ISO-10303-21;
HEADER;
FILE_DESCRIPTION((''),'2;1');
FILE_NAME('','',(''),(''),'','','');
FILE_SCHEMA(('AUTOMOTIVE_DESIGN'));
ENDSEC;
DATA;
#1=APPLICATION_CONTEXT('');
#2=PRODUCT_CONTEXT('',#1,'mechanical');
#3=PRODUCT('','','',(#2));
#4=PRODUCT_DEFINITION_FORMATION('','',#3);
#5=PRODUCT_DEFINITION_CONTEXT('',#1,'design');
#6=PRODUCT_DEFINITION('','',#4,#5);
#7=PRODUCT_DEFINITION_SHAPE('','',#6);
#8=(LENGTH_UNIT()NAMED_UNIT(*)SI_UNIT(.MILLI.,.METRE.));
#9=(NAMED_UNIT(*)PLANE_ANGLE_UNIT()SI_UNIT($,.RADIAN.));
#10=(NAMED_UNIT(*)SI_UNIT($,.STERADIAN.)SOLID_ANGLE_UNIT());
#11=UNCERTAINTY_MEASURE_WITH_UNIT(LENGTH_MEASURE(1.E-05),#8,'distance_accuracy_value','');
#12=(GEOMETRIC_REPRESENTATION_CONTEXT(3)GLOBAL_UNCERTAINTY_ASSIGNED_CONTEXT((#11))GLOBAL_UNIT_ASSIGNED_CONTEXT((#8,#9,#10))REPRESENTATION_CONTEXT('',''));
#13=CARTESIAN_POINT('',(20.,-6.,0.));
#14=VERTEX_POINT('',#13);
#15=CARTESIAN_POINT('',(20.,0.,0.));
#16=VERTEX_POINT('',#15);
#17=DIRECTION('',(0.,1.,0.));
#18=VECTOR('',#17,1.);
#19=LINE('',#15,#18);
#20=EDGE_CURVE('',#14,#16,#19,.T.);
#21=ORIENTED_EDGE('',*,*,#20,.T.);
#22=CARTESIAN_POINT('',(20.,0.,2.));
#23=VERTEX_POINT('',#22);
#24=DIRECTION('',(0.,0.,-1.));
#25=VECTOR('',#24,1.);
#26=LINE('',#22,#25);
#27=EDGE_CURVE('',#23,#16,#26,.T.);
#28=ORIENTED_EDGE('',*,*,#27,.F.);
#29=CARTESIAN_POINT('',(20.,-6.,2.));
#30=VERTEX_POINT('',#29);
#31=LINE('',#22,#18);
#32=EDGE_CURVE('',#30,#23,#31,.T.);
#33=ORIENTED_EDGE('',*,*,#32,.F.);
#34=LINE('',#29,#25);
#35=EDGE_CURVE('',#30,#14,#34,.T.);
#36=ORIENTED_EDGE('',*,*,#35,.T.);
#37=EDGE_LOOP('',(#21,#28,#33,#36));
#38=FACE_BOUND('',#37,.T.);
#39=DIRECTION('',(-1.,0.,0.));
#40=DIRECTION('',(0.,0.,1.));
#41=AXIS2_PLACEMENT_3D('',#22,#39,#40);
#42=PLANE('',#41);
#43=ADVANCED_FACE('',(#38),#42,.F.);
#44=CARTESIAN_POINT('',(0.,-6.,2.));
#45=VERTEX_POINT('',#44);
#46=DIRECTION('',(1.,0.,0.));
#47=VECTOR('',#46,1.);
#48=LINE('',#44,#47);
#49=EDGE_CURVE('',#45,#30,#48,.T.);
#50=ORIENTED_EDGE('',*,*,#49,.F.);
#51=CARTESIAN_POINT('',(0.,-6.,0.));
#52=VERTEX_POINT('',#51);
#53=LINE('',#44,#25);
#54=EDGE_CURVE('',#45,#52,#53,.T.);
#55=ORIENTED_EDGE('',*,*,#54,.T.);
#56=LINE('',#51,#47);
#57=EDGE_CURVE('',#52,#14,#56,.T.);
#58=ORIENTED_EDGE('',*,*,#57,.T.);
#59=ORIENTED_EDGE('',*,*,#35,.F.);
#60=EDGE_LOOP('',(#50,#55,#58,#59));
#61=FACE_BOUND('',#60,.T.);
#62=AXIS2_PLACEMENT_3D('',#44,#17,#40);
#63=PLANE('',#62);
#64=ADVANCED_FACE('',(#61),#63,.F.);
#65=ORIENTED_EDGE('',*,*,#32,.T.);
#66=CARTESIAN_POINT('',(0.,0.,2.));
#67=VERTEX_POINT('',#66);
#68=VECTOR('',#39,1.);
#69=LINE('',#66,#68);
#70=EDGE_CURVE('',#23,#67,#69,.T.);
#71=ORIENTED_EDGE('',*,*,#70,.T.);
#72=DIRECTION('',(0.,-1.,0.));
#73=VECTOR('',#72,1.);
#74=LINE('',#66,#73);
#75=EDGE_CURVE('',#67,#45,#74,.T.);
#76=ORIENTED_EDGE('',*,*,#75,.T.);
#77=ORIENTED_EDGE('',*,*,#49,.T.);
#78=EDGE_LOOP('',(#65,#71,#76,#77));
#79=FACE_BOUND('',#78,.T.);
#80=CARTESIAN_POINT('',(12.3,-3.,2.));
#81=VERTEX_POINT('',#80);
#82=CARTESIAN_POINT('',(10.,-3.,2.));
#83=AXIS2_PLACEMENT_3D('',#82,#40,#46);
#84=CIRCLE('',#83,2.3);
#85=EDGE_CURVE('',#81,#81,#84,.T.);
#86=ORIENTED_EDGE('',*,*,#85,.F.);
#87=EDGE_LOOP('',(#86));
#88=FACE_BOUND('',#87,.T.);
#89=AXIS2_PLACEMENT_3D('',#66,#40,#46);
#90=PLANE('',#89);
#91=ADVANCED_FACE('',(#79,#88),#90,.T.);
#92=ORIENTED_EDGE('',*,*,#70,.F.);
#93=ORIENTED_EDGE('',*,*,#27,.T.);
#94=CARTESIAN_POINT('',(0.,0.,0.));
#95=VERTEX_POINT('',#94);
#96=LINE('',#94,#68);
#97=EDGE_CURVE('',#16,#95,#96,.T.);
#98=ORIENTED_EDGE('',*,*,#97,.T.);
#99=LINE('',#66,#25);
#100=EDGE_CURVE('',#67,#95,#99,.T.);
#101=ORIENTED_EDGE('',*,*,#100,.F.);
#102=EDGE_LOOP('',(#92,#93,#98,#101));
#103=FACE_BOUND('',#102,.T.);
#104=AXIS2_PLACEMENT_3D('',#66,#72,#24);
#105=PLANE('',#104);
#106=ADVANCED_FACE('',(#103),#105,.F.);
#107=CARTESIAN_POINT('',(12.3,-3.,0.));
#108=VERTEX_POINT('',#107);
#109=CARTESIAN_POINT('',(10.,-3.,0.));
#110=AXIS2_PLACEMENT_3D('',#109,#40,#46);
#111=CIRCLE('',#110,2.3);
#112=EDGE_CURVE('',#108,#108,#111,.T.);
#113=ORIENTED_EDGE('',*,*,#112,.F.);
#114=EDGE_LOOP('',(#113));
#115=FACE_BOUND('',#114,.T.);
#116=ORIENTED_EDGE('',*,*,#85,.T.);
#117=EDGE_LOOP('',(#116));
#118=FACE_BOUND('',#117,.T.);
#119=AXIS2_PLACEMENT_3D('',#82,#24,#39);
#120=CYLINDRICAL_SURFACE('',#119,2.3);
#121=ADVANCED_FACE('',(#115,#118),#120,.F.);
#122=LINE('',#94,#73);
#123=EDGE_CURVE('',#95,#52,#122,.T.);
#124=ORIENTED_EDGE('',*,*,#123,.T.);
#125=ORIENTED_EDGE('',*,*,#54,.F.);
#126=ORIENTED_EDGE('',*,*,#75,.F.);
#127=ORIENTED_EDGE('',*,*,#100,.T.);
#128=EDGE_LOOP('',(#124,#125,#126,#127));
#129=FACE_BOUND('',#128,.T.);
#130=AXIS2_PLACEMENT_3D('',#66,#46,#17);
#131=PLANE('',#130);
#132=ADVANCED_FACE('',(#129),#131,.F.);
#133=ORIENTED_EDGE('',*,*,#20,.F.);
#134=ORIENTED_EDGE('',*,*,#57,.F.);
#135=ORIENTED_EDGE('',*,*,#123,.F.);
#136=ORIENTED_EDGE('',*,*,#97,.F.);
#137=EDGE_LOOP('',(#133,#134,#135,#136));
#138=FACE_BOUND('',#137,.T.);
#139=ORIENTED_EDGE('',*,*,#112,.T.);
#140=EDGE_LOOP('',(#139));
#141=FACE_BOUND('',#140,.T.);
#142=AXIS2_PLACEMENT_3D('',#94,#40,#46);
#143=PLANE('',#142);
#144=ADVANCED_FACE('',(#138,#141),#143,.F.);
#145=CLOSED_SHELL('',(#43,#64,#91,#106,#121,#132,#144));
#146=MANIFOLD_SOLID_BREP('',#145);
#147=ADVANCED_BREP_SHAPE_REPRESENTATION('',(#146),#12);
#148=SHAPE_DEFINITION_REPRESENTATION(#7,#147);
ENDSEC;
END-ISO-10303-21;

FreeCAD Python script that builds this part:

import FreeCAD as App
import Part
import Sketcher

V = App.Vector


def add_polygon(sketch, points):
    """Adds a closed chain of lines whose ends are joined by coincident constraints."""
    first, n = sketch.GeometryCount, len(points)
    for a, b in zip(points, points[1:] + points[:1]):
        sketch.addGeometry(Part.LineSegment(App.Vector(*a, 0), App.Vector(*b, 0)), False)
    for i in range(n):
        sketch.addConstraint(Sketcher.Constraint("Coincident", first + i, 2, first + (i + 1) % n, 1))

doc = App.newDocument("Part")
body = doc.addObject("PartDesign::Body", "Body")

sketch1 = body.newObject("Sketcher::SketchObject", "Sketch")
sketch1.AttachmentSupport = (doc.getObject("XY_Plane"), [""])
sketch1.MapMode = "FlatFace"
add_polygon(sketch1, [(0, 0), (0, -6), (20, -6), (20, 0)])
sketch1.addGeometry(Part.Circle(V(10, -3, 0), V(0, 0, 1), 2.3), False)
sketch1.addConstraint([
    Sketcher.Constraint("Vertical", 0),
    Sketcher.Constraint("Horizontal", 1),
    Sketcher.Constraint("Vertical", 2),
    Sketcher.Constraint("Horizontal", 3),
    Sketcher.Constraint("Coincident", 3, 2, -1, 1),
    Sketcher.Constraint("Diameter", 4, 4.6),
    Sketcher.Constraint("DistanceX", 1, 1, 1, 2, 20.0),
    Sketcher.Constraint("DistanceY", 0, 2, 0, 1, 6.0),
    Sketcher.Constraint("DistanceX", -1, 1, 4, 3, 10.0),
    Sketcher.Constraint("DistanceY", 4, 3, -1, 1, 3.0),
])
pad1 = body.newObject("PartDesign::Pad", "Pad")
pad1.Profile = sketch1
pad1.Length = 2

doc.recompute()
